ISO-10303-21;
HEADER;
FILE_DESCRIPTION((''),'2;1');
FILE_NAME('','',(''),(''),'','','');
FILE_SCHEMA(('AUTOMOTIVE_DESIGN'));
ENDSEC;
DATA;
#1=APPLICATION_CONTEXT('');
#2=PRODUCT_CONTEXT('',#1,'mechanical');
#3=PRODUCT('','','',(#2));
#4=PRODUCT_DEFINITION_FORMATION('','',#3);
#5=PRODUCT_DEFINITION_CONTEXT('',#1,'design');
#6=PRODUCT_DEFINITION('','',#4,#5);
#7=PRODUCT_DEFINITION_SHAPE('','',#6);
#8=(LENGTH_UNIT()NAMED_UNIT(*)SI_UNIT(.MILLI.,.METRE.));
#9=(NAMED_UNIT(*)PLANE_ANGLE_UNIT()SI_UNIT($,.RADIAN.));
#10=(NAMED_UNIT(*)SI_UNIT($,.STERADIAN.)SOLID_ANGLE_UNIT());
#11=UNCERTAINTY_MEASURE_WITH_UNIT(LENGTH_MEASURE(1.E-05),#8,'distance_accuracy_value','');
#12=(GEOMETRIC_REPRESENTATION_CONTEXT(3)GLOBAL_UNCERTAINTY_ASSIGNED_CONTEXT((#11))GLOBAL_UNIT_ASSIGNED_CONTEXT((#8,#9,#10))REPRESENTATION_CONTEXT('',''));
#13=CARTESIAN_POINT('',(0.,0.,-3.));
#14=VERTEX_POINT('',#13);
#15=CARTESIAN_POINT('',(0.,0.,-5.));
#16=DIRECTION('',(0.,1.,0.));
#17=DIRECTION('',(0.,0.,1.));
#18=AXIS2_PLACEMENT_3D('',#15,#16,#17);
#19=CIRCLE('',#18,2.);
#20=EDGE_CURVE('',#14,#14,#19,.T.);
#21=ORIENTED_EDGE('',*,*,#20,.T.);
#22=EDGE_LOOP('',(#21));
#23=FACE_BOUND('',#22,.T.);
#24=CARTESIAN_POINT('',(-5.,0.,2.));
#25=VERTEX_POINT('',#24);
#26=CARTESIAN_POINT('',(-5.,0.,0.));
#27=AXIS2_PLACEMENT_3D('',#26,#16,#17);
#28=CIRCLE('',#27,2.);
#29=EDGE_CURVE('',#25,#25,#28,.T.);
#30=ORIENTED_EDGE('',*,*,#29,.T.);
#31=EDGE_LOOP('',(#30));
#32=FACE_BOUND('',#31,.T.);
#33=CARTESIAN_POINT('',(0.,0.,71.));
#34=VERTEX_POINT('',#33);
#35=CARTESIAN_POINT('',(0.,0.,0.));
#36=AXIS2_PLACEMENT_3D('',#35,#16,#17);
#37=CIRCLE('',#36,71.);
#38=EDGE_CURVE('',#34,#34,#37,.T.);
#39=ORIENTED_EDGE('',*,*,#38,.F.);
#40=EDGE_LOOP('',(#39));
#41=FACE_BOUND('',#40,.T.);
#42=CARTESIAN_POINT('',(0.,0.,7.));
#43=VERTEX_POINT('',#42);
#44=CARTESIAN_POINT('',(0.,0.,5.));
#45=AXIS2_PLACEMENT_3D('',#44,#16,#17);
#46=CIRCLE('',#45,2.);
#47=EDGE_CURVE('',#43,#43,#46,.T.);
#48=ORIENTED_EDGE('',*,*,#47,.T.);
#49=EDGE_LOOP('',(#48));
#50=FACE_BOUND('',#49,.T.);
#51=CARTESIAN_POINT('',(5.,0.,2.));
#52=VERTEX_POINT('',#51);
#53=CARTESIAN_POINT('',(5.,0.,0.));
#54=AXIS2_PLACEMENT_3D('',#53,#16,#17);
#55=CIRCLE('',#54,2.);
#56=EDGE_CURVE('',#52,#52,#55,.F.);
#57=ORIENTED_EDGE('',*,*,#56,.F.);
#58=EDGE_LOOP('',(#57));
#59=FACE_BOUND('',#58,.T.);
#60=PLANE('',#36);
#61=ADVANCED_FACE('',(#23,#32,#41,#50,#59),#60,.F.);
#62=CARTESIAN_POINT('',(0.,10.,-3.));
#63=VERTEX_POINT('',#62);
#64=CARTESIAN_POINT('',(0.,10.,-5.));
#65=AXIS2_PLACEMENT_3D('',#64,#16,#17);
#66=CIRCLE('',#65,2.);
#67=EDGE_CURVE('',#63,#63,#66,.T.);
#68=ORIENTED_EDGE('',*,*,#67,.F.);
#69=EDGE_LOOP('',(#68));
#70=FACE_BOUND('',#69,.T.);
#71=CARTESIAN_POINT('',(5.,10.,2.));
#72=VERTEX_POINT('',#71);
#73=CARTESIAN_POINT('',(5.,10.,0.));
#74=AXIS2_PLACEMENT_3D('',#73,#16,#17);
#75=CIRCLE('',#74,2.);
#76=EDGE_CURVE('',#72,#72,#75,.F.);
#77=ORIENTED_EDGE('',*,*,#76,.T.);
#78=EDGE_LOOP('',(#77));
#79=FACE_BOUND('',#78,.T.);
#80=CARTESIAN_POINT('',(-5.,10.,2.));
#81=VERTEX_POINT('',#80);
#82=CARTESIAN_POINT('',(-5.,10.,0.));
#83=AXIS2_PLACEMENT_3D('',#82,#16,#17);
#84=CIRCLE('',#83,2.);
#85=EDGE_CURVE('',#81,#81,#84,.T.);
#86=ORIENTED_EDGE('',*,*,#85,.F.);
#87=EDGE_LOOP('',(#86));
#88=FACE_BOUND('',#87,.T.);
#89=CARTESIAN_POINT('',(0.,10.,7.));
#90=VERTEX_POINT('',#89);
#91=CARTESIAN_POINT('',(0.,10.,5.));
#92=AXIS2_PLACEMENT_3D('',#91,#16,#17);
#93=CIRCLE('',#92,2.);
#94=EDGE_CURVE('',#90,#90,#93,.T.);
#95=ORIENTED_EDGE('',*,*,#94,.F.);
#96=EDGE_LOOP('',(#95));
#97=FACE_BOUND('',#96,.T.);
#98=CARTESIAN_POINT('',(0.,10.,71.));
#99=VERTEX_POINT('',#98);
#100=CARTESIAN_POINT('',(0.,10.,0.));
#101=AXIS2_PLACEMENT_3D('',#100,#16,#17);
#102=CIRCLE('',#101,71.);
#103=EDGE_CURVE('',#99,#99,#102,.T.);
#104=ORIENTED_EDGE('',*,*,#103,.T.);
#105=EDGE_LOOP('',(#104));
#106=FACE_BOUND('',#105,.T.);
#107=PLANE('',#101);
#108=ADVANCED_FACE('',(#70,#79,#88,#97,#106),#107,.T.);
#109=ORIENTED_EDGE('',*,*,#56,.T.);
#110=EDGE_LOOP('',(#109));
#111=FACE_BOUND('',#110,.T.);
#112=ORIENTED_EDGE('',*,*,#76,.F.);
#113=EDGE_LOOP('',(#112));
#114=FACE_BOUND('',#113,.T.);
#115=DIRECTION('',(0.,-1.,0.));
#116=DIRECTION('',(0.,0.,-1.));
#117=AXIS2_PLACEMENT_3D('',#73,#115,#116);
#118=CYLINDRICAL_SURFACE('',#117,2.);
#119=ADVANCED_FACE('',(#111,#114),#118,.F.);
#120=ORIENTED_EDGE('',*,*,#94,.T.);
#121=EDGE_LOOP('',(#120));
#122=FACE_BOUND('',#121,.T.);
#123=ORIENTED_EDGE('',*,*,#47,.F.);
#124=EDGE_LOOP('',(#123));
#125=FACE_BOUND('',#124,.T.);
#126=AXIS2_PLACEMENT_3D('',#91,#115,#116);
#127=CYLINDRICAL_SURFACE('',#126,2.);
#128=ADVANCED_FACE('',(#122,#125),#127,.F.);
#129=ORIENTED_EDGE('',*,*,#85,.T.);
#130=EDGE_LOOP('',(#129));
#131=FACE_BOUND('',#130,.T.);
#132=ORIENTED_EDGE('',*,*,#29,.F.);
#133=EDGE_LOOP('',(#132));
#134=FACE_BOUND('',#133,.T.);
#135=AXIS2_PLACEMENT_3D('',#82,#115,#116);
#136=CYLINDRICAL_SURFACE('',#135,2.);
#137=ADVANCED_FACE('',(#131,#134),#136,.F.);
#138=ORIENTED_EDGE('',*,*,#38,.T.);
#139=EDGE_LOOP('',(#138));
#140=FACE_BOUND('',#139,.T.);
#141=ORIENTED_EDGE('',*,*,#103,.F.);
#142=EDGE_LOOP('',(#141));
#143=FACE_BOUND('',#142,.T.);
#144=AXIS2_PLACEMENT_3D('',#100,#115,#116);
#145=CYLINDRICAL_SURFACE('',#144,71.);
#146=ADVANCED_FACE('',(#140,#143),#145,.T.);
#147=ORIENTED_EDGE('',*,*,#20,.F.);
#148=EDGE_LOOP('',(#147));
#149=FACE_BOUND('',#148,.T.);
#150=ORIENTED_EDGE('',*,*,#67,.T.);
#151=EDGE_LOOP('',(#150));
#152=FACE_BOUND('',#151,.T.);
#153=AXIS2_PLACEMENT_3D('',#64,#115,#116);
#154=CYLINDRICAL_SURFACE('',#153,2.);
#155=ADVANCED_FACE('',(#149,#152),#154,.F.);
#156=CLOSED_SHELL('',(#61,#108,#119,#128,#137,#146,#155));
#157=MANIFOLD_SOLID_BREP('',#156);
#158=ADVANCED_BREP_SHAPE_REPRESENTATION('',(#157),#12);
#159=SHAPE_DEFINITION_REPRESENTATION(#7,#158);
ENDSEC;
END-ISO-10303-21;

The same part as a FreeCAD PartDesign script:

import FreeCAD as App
import Part
import Sketcher
Q = App.Units.Quantity

doc = App.newDocument("Part")
body = doc.addObject("PartDesign::Body", "Body")

sketch1 = body.newObject("Sketcher::SketchObject", "Sketch")
sketch1.AttachmentSupport = (doc.getObject("XZ_Plane"), [""])
sketch1.MapMode = "FlatFace"
sketch1.addGeometry([
    Part.Circle(App.Vector(0, 0, 0), App.Vector(0, 0, 1), 71),
    Part.Circle(App.Vector(0, -5, 0), App.Vector(0, 0, 1), 2),
    Part.Circle(App.Vector(-5, 0, 0), App.Vector(0, 0, 1), 2),
    Part.Circle(App.Vector(5, 0, 0), App.Vector(0, 0, 1), 2),
    Part.Circle(App.Vector(0, 5, 0), App.Vector(0, 0, 1), 2),
], False)
sketch1.addConstraint([
    Sketcher.Constraint("Coincident", 0, 3, -1, 1),
    Sketcher.Constraint("Equal", 1, 2),
    Sketcher.Constraint("Equal", 2, 3),
    Sketcher.Constraint("Equal", 3, 4),
    Sketcher.Constraint("Symmetric", 2, 3, 3, 3, -1, 1),
    Sketcher.Constraint("Symmetric", 1, 3, 4, 3, -1, 1),
    Sketcher.Constraint("PointOnObject", 1, 3, -2),
    Sketcher.Constraint("PointOnObject", 2, 3, -1),
    Sketcher.Constraint("Diameter", 0, Q("142 mm")),
    Sketcher.Constraint("Diameter", 1, Q("4 mm")),
    Sketcher.Constraint("DistanceY", 1, 3, -1, 1, Q("5 mm")),
    Sketcher.Constraint("DistanceX", 2, 3, -1, 1, Q("5 mm")),
])
pad1 = body.newObject("PartDesign::Pad", "Pad")
pad1.Profile = sketch1
pad1.Length = 10
pad1.Reversed = True

doc.recompute()
